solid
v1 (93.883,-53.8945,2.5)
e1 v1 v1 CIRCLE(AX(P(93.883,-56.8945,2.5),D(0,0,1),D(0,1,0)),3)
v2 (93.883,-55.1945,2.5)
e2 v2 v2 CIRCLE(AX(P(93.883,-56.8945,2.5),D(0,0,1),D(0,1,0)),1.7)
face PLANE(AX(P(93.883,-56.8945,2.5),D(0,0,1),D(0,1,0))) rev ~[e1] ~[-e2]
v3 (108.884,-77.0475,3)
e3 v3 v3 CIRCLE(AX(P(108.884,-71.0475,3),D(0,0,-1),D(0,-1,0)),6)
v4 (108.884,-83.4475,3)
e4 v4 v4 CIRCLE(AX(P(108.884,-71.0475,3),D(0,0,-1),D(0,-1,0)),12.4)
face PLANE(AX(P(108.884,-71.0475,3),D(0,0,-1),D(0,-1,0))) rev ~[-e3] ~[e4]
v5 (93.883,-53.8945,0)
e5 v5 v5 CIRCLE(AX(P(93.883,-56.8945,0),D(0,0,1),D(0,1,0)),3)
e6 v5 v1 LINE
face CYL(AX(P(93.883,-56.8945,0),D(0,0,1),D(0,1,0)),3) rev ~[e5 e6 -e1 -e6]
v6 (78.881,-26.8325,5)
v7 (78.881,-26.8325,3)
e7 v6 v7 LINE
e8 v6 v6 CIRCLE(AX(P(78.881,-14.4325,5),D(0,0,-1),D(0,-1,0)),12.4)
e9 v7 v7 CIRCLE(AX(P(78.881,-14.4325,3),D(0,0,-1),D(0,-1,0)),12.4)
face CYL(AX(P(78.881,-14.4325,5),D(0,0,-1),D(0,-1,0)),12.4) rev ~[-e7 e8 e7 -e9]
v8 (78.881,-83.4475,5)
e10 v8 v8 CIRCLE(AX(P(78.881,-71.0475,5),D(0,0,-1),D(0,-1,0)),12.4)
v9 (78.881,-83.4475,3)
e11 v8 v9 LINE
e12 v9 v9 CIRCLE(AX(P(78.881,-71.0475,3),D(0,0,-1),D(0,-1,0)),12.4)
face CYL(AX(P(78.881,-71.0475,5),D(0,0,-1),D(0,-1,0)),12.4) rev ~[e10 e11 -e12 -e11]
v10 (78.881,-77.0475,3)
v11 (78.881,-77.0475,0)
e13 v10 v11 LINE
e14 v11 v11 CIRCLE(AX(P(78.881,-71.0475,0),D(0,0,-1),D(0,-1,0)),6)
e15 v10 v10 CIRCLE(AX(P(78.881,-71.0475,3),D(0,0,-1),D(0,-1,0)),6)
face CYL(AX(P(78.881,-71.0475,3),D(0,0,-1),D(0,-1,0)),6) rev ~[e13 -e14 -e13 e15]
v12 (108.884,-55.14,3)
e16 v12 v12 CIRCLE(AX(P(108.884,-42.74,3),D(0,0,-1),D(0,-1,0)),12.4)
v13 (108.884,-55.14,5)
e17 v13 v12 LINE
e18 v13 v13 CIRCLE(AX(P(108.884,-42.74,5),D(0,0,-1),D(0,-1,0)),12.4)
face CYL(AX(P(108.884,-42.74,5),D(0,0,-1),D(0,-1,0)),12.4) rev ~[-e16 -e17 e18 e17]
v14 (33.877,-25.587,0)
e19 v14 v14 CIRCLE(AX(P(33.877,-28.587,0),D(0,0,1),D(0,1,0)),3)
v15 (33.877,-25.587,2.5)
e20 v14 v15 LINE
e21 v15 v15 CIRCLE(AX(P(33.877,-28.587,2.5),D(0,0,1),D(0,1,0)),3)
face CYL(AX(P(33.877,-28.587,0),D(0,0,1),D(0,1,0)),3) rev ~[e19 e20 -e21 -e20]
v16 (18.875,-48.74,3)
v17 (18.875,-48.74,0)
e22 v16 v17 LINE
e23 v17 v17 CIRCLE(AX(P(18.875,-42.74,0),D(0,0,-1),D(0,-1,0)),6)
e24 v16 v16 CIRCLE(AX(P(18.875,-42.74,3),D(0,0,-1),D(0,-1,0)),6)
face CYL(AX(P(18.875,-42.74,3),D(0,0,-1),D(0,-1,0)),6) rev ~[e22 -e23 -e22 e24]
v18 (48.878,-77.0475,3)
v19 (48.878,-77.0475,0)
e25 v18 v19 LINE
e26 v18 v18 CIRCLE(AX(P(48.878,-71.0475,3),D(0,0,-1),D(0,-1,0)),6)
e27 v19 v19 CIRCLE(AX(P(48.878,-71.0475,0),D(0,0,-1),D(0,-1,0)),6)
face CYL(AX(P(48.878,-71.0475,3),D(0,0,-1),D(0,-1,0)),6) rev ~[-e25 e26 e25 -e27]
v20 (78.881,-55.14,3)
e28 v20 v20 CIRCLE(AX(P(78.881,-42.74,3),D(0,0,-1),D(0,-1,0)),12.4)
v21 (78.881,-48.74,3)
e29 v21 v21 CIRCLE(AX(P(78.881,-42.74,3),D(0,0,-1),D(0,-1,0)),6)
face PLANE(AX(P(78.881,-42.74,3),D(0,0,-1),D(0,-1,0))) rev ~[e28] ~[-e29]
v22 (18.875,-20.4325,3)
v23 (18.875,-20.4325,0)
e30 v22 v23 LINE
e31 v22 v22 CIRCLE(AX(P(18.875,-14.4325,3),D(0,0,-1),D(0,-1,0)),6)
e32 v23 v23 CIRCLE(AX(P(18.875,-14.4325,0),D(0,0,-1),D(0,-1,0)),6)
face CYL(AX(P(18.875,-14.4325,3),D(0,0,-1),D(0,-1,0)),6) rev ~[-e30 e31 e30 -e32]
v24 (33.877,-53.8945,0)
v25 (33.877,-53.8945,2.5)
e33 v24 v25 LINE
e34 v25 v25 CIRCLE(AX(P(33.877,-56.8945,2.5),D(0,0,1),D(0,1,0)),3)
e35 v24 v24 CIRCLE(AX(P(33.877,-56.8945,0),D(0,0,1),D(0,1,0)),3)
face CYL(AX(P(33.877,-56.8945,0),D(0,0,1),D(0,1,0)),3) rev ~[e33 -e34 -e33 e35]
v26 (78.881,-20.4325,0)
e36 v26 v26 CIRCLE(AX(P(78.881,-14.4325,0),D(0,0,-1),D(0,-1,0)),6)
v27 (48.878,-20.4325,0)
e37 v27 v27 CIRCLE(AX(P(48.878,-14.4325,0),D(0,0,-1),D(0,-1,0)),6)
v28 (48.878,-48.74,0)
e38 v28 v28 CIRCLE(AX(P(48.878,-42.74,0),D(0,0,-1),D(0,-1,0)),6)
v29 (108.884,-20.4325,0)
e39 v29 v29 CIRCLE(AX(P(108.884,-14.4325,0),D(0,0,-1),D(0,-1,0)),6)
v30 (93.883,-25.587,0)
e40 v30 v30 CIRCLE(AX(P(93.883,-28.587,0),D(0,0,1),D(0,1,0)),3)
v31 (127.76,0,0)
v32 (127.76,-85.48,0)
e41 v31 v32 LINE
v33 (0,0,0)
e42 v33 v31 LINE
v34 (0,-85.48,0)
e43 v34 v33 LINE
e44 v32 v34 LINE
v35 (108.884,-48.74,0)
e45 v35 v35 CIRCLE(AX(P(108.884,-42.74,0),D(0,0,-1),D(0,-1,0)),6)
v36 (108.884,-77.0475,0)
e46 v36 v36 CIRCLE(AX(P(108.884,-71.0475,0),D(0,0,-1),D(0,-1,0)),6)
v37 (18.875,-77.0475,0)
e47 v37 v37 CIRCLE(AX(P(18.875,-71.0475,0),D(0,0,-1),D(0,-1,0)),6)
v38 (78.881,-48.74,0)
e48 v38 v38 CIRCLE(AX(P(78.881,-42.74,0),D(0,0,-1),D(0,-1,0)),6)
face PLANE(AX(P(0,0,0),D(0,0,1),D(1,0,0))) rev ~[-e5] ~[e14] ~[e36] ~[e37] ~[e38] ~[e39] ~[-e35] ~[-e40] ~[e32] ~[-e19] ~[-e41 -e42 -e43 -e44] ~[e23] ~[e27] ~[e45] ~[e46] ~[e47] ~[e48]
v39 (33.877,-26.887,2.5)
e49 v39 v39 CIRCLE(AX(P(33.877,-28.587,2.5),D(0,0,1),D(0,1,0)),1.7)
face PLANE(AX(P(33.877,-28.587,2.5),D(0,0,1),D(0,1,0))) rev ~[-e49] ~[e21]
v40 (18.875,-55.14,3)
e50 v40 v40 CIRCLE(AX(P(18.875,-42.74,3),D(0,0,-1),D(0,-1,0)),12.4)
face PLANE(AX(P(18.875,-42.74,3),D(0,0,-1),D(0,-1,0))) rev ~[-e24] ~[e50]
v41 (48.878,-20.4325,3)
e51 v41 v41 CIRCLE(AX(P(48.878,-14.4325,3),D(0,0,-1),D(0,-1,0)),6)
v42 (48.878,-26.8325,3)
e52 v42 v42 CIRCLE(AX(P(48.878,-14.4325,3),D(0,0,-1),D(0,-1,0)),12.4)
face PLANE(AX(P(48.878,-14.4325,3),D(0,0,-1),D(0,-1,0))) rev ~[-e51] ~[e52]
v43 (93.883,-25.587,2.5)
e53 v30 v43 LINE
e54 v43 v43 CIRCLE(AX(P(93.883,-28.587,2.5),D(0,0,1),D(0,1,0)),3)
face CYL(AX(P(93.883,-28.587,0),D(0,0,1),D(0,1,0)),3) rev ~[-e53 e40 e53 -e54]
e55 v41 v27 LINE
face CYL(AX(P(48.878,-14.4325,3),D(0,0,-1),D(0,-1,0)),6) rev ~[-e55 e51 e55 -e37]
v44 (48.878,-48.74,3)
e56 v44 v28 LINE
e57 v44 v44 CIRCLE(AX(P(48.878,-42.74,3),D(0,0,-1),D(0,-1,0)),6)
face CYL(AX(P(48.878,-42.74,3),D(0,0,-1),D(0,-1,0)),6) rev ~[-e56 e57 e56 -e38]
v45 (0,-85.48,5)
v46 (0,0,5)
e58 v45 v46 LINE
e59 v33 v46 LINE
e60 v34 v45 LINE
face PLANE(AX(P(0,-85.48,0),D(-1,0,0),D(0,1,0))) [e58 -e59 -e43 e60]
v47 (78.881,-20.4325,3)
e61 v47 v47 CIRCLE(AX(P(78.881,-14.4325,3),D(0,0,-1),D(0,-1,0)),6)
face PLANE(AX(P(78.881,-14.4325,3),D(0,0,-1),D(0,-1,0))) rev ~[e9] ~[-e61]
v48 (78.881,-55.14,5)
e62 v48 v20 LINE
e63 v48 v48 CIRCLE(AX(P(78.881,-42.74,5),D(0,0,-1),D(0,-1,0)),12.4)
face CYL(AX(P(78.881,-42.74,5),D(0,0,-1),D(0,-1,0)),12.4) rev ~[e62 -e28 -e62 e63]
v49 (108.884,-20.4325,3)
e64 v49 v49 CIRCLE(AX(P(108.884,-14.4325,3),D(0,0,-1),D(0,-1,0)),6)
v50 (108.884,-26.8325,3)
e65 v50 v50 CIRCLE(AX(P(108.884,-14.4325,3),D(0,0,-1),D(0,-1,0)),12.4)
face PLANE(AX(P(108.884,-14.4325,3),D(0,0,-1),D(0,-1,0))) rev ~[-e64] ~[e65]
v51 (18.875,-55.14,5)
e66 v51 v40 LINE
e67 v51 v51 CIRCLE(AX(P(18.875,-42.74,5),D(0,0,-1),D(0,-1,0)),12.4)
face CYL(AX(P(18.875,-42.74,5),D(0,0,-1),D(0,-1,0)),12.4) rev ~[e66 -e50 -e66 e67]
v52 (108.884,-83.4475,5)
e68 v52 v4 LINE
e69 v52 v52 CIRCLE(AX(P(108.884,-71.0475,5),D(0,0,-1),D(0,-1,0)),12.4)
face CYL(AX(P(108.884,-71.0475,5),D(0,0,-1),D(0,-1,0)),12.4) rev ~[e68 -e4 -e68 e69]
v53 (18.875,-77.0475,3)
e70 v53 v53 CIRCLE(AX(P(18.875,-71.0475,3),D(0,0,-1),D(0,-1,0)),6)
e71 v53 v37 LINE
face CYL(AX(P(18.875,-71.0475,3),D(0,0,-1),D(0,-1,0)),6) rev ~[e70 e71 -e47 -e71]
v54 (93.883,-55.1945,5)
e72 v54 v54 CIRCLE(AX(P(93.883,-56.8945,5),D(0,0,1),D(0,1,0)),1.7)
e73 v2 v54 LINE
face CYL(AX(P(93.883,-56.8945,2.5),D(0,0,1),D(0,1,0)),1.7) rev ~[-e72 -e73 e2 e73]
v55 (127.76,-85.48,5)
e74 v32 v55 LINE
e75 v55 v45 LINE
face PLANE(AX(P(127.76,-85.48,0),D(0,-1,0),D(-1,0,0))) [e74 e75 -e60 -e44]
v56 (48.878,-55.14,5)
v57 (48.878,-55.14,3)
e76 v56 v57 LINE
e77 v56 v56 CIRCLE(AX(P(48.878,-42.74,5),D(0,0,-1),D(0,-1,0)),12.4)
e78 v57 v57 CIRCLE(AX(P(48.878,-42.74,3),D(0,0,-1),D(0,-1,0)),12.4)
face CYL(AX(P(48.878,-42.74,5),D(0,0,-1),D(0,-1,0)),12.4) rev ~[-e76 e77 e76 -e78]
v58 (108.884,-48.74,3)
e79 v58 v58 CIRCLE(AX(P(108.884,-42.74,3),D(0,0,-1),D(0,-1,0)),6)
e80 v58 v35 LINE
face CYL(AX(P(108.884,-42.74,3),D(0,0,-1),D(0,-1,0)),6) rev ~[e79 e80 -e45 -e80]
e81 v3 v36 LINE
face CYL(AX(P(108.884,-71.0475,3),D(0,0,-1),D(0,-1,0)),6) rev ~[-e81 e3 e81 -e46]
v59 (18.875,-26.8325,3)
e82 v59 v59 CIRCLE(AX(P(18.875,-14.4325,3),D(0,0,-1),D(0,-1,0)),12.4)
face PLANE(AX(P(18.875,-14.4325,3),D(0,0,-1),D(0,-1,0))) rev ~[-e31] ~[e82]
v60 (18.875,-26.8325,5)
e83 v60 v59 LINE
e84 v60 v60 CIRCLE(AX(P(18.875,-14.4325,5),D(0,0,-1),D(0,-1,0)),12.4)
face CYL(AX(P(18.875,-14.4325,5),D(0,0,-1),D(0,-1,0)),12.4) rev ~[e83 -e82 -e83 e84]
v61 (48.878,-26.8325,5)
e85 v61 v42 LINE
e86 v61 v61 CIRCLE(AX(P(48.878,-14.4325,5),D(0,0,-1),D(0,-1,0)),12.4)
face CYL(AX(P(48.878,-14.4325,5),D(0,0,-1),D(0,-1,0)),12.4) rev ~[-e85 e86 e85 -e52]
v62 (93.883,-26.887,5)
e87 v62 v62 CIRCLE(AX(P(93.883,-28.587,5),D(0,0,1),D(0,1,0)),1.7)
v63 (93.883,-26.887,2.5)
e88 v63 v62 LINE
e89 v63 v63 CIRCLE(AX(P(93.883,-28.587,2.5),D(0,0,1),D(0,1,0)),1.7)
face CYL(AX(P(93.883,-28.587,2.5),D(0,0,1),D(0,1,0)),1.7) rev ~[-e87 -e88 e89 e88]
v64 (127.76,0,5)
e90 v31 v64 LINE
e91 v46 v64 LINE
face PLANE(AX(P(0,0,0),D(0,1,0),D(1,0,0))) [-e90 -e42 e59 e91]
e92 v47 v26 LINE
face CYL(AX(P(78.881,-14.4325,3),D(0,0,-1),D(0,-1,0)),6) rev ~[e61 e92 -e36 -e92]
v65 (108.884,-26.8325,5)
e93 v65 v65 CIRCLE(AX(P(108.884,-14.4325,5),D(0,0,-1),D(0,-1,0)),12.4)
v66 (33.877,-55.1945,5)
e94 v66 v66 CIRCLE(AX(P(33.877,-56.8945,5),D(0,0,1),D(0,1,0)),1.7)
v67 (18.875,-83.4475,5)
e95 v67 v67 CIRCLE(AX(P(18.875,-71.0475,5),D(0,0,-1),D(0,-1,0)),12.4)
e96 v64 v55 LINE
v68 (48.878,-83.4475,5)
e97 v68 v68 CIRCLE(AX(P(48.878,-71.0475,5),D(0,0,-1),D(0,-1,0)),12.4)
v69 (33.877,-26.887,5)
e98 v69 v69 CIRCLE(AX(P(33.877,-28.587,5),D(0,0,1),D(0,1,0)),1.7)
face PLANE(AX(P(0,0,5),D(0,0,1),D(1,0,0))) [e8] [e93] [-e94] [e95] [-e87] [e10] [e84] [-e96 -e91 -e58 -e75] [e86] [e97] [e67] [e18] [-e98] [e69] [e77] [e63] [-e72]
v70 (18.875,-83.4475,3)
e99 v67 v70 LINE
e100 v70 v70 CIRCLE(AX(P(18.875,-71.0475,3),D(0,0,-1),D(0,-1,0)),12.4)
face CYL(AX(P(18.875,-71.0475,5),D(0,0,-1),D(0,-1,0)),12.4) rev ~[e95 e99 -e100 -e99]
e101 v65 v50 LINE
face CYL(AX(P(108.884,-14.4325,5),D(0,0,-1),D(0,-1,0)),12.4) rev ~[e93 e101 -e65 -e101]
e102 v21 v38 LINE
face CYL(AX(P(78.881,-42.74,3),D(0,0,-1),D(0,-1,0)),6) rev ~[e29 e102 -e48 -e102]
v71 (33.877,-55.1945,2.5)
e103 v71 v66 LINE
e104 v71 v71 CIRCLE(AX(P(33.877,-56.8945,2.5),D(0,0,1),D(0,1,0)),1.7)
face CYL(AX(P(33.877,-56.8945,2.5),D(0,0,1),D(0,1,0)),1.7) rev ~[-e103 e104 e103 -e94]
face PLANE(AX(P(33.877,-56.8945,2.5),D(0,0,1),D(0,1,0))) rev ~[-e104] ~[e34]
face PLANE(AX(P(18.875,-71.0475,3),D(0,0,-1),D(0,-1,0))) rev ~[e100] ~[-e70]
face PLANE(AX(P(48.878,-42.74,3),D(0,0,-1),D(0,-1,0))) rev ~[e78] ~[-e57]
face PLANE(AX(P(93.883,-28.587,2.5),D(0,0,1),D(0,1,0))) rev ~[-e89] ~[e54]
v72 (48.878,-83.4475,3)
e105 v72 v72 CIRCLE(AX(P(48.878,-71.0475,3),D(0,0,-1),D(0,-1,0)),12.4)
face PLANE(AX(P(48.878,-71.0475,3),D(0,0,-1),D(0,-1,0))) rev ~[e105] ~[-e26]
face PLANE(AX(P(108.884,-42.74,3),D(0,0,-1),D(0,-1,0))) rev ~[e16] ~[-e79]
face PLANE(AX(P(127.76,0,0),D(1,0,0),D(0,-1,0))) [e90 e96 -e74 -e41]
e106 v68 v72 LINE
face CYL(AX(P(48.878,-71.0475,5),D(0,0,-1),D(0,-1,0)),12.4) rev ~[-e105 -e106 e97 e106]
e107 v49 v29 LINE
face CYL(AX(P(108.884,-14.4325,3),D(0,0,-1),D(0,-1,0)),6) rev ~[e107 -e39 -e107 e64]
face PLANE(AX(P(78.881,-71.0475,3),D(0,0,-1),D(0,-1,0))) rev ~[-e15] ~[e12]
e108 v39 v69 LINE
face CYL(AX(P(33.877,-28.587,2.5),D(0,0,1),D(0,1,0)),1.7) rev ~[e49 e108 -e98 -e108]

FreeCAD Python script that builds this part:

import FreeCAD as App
import Part
import Sketcher

V = App.Vector

doc = App.newDocument("Part")
params = doc.addObject("Spreadsheet::Sheet", "Params")
for row, (alias, value) in enumerate([
    ("sketch1_width", "127.76 mm"),
    ("sketch1_height", "85.48 mm"),
    ("pad1_length", "5 mm"),
    ("sketch2_diameter", "12 mm"),
    ("hole_diameter", "12 mm"),
    ("hole_depth", "13 mm"),
    ("hole_cbore_diameter", "24.8 mm"),
    ("hole_cbore_depth", "2 mm"),
    ("sketch3_diameter", "3.4 mm"),
    ("hole2_diameter", "3.4 mm"),
    ("hole2_depth", "20 mm"),
    ("hole2_cbore_diameter", "6 mm"),
    ("hole2_cbore_depth", "2.5 mm"),
], start=1):
    params.set(f"A{row}", alias)
    params.set(f"B{row}", "=" + value)
    params.setAlias(f"B{row}", alias)

body = doc.addObject("PartDesign::Body", "Body")

sketch1 = body.newObject("Sketcher::SketchObject", "Sketch")
sketch1.AttachmentSupport = (doc.getObject("XY_Plane"), [""])
sketch1.MapMode = "FlatFace"
sketch1.addGeometry([
    Part.LineSegment(V(128, 0, 0), V(0, 0, 0)),
    Part.LineSegment(V(0, 0, 0), V(0, -85, 0)),
    Part.LineSegment(V(0, -85, 0), V(128, -85, 0)),
    Part.LineSegment(V(128, -85, 0), V(128, 0, 0)),
], False)
sketch1.addConstraint([
    Sketcher.Constraint("Coincident", 0, 2, 1, 1),
    Sketcher.Constraint("Coincident", 1, 2, 2, 1),
    Sketcher.Constraint("Coincident", 2, 2, 3, 1),
    Sketcher.Constraint("Coincident", 3, 2, 0, 1),
    Sketcher.Constraint("Horizontal", 0),
    Sketcher.Constraint("Vertical", 1),
    Sketcher.Constraint("Horizontal", 2),
    Sketcher.Constraint("Vertical", 3),
    Sketcher.Constraint("Coincident", 0, 2, -1, 1),
    Sketcher.Constraint("DistanceX", 0, 2, 0, 1, 127.76),
    Sketcher.Constraint("DistanceY", 1, 2, 1, 1, 85.48),
])
sketch1.setExpression("Constraints[9]", "Params.sketch1_width")
sketch1.setExpression("Constraints[10]", "Params.sketch1_height")
pad1 = body.newObject("PartDesign::Pad", "Pad")
pad1.Profile = sketch1
pad1.setExpression("Length", "Params.pad1_length")

sketch2 = body.newObject("Sketcher::SketchObject", "Sketch001")
sketch2.AttachmentSupport = (doc.getObject("XY_Plane"), [""])
sketch2.MapMode = "FlatFace"
sketch2.AttachmentOffset = App.Placement(V(0, 0, 5), App.Rotation())
sketch2.addGeometry([
    Part.Circle(V(19, -14, 0), V(0, 0, 1), 6),
    Part.Circle(V(19, -43, 0), V(0, 0, 1), 6),
    Part.Circle(V(19, -71, 0), V(0, 0, 1), 6),
    Part.Circle(V(49, -71, 0), V(0, 0, 1), 6),
    Part.Circle(V(49, -43, 0), V(0, 0, 1), 6),
    Part.Circle(V(49, -14, 0), V(0, 0, 1), 6),
    Part.Circle(V(79, -14, 0), V(0, 0, 1), 6),
    Part.Circle(V(79, -43, 0), V(0, 0, 1), 6),
    Part.Circle(V(79, -71, 0), V(0, 0, 1), 6),
    Part.Circle(V(109, -71, 0), V(0, 0, 1), 6),
    Part.Circle(V(109, -43, 0), V(0, 0, 1), 6),
    Part.Circle(V(109, -14, 0), V(0, 0, 1), 6),
], False)
sketch2.addConstraint([
    Sketcher.Constraint("Equal", 0, 1),
    Sketcher.Constraint("Equal", 1, 2),
    Sketcher.Constraint("Equal", 2, 3),
    Sketcher.Constraint("Equal", 3, 4),
    Sketcher.Constraint("Equal", 4, 5),
    Sketcher.Constraint("Equal", 5, 6),
    Sketcher.Constraint("Equal", 6, 7),
    Sketcher.Constraint("Equal", 7, 8),
    Sketcher.Constraint("Equal", 8, 9),
    Sketcher.Constraint("Equal", 9, 10),
    Sketcher.Constraint("Equal", 10, 11),
    Sketcher.Constraint("Horizontal", 2, 3, 3, 3),
    Sketcher.Constraint("Horizontal", 1, 3, 4, 3),
    Sketcher.Constraint("Horizontal", 0, 3, 5, 3),
    Sketcher.Constraint("Horizontal", 5, 3, 6, 3),
    Sketcher.Constraint("Horizontal", 4, 3, 7, 3),
    Sketcher.Constraint("Horizontal", 3, 3, 8, 3),
    Sketcher.Constraint("Horizontal", 8, 3, 9, 3),
    Sketcher.Constraint("Horizontal", 7, 3, 10, 3),
    Sketcher.Constraint("Horizontal", 6, 3, 11, 3),
    Sketcher.Constraint("Vertical", 0, 3, 1, 3),
    Sketcher.Constraint("Vertical", 1, 3, 2, 3),
    Sketcher.Constraint("Vertical", 3, 3, 4, 3),
    Sketcher.Constraint("Vertical", 4, 3, 5, 3),
    Sketcher.Constraint("Vertical", 6, 3, 7, 3),
    Sketcher.Constraint("Vertical", 7, 3, 8, 3),
    Sketcher.Constraint("Vertical", 9, 3, 10, 3),
    Sketcher.Constraint("Vertical", 10, 3, 11, 3),
    Sketcher.Constraint("Diameter", 0, 12.0),
    Sketcher.Constraint("DistanceY", 1, 3, -1, 1, 42.74),
    Sketcher.Constraint("DistanceX", -1, 1, 0, 3, 18.875),
    Sketcher.Constraint("DistanceX", -1, 1, 3, 3, 48.878),
    Sketcher.Constraint("DistanceX", -1, 1, 6, 3, 78.881),
    Sketcher.Constraint("DistanceX", -1, 1, 9, 3, 108.884),
    Sketcher.Constraint("DistanceY", 2, 3, 0, 3, 56.615),
    Sketcher.Constraint("DistanceY", 0, 3, -1, 1, 14.4325),
])
sketch2.setExpression("Constraints[28]", "Params.sketch2_diameter")
doc.recompute()
hole = body.newObject("PartDesign::Hole", "Hole")
hole.Profile = sketch2
hole.ThreadType = "None"
hole.setExpression("Diameter", "Params.hole_diameter")
hole.DepthType = "Dimension"
hole.setExpression("Depth", "Params.hole_depth")
hole.DrillPoint = "Flat"
hole.HoleCutType = "Counterbore"
hole.setExpression("HoleCutDiameter", "Params.hole_cbore_diameter")
hole.setExpression("HoleCutDepth", "Params.hole_cbore_depth")

sketch3 = body.newObject("Sketcher::SketchObject", "Sketch002")
sketch3.AttachmentSupport = (doc.getObject("XY_Plane"), [""])
sketch3.MapMode = "FlatFace"
sketch3.addGeometry([
    Part.Circle(V(33.9, -56.9, 0), V(0, 0, 1), 1.7),
    Part.Circle(V(33.9, -28.6, 0), V(0, 0, 1), 1.7),
    Part.Circle(V(93.9, -56.9, 0), V(0, 0, 1), 1.7),
    Part.Circle(V(93.9, -28.6, 0), V(0, 0, 1), 1.7),
], False)
sketch3.addConstraint([
    Sketcher.Constraint("Equal", 0, 1),
    Sketcher.Constraint("Equal", 1, 2),
    Sketcher.Constraint("Equal", 2, 3),
    Sketcher.Constraint("Horizontal", 0, 3, 2, 3),
    Sketcher.Constraint("Horizontal", 1, 3, 3, 3),
    Sketcher.Constraint("Vertical", 0, 3, 1, 3),
    Sketcher.Constraint("Vertical", 2, 3, 3, 3),
    Sketcher.Constraint("Diameter", 0, 3.4),
    Sketcher.Constraint("DistanceX", -1, 1, 0, 3, 33.877),
    Sketcher.Constraint("DistanceY", 1, 3, -1, 1, 28.587),
    Sketcher.Constraint("DistanceX", -1, 1, 2, 3, 93.883),
    Sketcher.Constraint("DistanceY", 0, 3, -1, 1, 56.8945),
])
sketch3.setExpression("Constraints[7]", "Params.sketch3_diameter")
doc.recompute()
hole2 = body.newObject("PartDesign::Hole", "Hole001")
hole2.Profile = sketch3
hole2.ThreadType = "None"
hole2.setExpression("Diameter", "Params.hole2_diameter")
hole2.DepthType = "Dimension"
hole2.setExpression("Depth", "Params.hole2_depth")
hole2.DrillPoint = "Angled"
hole2.DrillPointAngle = 118
hole2.HoleCutType = "Counterbore"
hole2.setExpression("HoleCutDiameter", "Params.hole2_cbore_diameter")
hole2.setExpression("HoleCutDepth", "Params.hole2_cbore_depth")
hole2.Reversed = True

doc.recompute()
